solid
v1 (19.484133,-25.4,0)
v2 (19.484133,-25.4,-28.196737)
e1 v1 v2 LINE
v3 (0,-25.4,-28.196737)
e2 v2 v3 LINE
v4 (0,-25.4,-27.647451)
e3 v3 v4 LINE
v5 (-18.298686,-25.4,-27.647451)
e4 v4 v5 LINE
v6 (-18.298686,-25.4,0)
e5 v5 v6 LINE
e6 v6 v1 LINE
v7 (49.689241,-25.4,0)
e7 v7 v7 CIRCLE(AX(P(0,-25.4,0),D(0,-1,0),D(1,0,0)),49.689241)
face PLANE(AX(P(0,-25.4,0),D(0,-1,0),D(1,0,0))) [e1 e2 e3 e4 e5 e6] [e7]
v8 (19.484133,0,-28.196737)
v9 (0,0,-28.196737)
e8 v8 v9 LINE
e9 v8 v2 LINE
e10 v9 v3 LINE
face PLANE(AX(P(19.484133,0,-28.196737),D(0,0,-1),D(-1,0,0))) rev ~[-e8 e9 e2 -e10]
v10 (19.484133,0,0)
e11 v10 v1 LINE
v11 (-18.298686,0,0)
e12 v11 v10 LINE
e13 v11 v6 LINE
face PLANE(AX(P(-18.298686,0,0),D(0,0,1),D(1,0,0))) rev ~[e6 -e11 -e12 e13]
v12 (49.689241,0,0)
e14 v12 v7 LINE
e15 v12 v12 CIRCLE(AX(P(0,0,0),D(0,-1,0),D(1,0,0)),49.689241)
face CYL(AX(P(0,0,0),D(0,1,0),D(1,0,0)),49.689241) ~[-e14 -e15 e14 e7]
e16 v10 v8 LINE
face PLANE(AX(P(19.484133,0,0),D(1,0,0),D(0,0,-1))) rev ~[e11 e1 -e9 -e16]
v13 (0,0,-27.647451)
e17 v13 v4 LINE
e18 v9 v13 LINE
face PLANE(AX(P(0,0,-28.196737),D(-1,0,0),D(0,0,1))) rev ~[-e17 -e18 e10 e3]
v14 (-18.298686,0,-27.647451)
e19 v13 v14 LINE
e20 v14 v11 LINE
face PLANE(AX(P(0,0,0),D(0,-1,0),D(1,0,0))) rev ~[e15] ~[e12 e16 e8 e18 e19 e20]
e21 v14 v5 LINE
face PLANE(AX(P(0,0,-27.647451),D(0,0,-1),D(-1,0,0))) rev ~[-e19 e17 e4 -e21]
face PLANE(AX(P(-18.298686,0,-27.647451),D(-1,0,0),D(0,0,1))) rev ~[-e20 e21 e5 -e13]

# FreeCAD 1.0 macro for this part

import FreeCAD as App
import Part
import Sketcher

doc = App.newDocument("Part")
params = doc.addObject("Spreadsheet::Sheet", "Params")
for row, (alias, value) in enumerate([
    ("pad1_length", "1 in"),
], start=1):
    params.set(f"A{row}", alias)
    params.set(f"B{row}", "=" + value)
    params.setAlias(f"B{row}", alias)

body = doc.addObject("PartDesign::Body", "Body")

# Sketch on XZ plane
sketch1 = doc.addObject("Sketcher::SketchObject", "Sketch")
body.addObject(sketch1)
sketch1.AttachmentSupport = (doc.XZ_Plane, [""])
sketch1.MapMode = "FlatFace"
sketch1.addGeometry([
    Part.Circle(App.Vector(0, 0, 0), App.Vector(0, 0, 1), 49.689241),  # 0
    Part.LineSegment(App.Vector(-18.298686, -27.647451, 0), App.Vector(-18.298686, 0, 0)),  # 1
    Part.LineSegment(App.Vector(-18.298686, 0, 0), App.Vector(19.484133, 0, 0)),  # 2
    Part.LineSegment(App.Vector(19.484133, 0, 0), App.Vector(19.484133, -28.196737, 0)),  # 3
    Part.LineSegment(App.Vector(19.484133, -28.196737, 0), App.Vector(0, -28.196737, 0)),  # 4
    Part.LineSegment(App.Vector(0, -28.196737, 0), App.Vector(0, -27.647451, 0)),  # 5
    Part.LineSegment(App.Vector(0, -27.647451, 0), App.Vector(-18.298686, -27.647451, 0)),  # 6
], False)
sketch1.addConstraint([
    Sketcher.Constraint("Coincident", 1, 2, 2, 1),
    Sketcher.Constraint("Coincident", 2, 2, 3, 1),
    Sketcher.Constraint("Coincident", 3, 2, 4, 1),
    Sketcher.Constraint("Coincident", 4, 2, 5, 1),
    Sketcher.Constraint("Coincident", 5, 2, 6, 1),
    Sketcher.Constraint("Coincident", 6, 2, 1, 1),
    Sketcher.Constraint("Vertical", 1),
    Sketcher.Constraint("Horizontal", 2),
    Sketcher.Constraint("Vertical", 3),
    Sketcher.Constraint("Horizontal", 4),
    Sketcher.Constraint("Vertical", 5),
    Sketcher.Constraint("Horizontal", 6),
    Sketcher.Constraint("Coincident", 0, 3, -1, 1),
    Sketcher.Constraint("PointOnObject", 1, 2, -1),
    Sketcher.Constraint("PointOnObject", 4, 2, -2),
    Sketcher.Constraint("Diameter", 0, 99.378482),
    Sketcher.Constraint("DistanceX", 2, 1, 2, 2, 37.782819),
    Sketcher.Constraint("DistanceY", 1, 1, 1, 2, 27.647451),
    Sketcher.Constraint("DistanceX", 4, 2, 4, 1, 19.484133),
    Sketcher.Constraint("DistanceY", 3, 2, 3, 1, 28.196737),
])
pad1 = doc.addObject("PartDesign::Pad", "Pad")
body.addObject(pad1)
pad1.Profile = sketch1
pad1.setExpression("Length", "Params.pad1_length")

doc.recompute()
